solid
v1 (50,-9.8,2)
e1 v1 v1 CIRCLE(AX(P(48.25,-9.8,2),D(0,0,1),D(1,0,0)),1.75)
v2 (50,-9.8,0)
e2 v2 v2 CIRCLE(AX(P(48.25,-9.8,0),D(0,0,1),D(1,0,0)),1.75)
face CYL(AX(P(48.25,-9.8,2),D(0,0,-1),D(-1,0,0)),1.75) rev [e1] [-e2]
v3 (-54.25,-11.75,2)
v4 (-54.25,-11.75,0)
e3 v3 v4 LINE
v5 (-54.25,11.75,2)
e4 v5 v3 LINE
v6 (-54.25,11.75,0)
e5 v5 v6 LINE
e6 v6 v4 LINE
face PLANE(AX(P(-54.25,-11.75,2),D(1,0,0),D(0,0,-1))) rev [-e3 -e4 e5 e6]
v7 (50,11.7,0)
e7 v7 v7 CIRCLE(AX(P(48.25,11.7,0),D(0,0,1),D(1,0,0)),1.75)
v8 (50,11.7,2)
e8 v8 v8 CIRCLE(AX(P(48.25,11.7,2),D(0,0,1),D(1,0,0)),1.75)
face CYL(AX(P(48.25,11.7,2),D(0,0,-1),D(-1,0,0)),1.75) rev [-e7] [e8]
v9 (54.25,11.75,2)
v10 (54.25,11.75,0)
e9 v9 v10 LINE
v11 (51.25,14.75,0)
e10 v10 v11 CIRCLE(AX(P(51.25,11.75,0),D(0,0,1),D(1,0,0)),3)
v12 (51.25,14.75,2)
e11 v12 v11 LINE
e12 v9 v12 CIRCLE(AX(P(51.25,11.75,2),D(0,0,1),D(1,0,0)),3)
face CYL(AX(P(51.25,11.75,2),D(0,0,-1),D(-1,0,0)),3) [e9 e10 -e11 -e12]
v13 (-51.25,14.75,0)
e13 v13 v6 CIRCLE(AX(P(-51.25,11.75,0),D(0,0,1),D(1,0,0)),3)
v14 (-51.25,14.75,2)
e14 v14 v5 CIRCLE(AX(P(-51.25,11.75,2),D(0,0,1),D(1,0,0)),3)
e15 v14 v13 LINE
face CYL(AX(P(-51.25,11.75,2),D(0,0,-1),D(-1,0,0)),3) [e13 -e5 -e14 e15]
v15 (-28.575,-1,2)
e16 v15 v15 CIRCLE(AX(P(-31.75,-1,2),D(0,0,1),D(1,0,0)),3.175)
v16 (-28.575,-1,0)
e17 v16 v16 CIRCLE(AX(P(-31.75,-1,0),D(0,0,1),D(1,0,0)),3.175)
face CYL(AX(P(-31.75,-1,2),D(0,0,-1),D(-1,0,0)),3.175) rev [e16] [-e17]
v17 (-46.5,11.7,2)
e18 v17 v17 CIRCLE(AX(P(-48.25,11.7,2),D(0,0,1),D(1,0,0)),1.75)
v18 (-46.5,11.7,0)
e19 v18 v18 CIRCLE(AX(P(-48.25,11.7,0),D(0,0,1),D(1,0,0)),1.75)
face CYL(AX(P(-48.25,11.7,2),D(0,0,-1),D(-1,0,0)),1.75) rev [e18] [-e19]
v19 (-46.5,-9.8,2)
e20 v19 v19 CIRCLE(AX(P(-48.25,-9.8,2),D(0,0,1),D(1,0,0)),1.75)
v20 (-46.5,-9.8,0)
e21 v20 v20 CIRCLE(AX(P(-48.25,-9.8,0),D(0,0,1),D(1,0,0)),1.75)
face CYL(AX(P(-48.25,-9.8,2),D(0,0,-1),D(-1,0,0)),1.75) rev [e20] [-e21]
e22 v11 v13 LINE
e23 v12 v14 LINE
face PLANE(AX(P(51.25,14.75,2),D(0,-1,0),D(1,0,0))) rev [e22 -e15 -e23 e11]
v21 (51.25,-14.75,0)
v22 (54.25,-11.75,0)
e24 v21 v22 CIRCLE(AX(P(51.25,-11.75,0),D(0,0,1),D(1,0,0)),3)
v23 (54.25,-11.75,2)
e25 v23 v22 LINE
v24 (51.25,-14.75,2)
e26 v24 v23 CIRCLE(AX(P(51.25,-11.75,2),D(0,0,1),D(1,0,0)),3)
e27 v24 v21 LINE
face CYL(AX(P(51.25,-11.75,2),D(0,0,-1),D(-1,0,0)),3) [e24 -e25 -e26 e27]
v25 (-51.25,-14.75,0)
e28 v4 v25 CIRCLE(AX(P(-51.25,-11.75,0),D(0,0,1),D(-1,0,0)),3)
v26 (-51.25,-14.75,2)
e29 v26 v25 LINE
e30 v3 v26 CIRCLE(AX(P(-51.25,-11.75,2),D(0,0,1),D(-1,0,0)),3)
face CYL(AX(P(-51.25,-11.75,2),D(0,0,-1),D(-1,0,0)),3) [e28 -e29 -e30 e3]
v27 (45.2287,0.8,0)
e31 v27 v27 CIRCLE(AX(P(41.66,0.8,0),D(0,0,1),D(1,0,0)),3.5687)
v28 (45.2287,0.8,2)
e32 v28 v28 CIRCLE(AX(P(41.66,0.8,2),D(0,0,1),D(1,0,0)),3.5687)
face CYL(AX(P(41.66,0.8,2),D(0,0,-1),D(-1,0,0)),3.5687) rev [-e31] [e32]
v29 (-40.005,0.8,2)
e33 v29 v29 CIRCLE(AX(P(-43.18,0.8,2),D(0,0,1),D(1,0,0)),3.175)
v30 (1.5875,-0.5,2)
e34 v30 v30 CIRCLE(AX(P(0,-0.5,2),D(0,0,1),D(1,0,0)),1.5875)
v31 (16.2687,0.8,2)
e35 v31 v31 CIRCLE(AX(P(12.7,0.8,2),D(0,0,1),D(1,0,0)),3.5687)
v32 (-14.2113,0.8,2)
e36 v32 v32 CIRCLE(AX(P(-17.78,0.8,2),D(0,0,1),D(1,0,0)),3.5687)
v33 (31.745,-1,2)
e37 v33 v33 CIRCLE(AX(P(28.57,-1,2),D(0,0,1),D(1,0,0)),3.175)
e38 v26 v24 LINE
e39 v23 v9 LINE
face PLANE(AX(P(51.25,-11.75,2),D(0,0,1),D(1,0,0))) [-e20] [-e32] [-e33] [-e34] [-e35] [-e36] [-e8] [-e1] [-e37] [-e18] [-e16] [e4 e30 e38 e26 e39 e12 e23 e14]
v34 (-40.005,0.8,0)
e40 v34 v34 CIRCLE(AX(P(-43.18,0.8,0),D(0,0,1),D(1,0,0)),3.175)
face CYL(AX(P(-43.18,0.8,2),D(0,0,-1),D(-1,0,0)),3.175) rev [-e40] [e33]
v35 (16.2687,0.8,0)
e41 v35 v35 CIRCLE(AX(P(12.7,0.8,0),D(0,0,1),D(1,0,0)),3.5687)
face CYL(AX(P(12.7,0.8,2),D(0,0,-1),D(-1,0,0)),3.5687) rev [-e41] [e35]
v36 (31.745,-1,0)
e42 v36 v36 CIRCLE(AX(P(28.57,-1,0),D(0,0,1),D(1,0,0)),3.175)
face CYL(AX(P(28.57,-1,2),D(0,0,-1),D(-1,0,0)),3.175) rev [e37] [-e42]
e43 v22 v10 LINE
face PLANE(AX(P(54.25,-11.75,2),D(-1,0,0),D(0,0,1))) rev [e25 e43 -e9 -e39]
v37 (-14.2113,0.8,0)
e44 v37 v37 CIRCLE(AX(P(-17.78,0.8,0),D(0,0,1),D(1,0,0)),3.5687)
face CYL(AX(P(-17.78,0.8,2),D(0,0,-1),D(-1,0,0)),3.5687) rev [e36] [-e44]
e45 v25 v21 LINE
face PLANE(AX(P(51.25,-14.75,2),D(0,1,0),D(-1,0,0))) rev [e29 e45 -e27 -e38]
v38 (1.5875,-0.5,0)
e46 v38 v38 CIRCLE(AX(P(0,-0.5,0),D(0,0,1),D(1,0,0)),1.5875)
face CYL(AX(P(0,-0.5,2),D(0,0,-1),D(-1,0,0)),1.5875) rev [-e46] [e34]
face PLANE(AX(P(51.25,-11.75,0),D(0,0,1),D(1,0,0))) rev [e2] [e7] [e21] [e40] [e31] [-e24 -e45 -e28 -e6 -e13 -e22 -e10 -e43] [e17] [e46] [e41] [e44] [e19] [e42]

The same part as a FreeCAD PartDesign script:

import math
import FreeCAD as App
import Part
import Sketcher

V = App.Vector

doc = App.newDocument("Part")
body = doc.addObject("PartDesign::Body", "Body")

# Sketch on XY plane
sketch1 = doc.addObject("Sketcher::SketchObject", "Sketch")
body.addObject(sketch1)
sketch1.AttachmentSupport = (doc.XY_Plane, [""])
sketch1.MapMode = "FlatFace"
sketch1.addGeometry(Part.LineSegment(V(-51.25, -14.75, 0), V(51.25, -14.75, 0)), False)
sketch1.addGeometry(Part.ArcOfCircle(Part.Circle(V(51.25, -11.75, 0), V(0, 0, 1), 3), math.radians(-90), math.radians(0)), False)
sketch1.addGeometry(Part.LineSegment(V(54.25, -11.75, 0), V(54.25, 11.75, 0)), False)
sketch1.addGeometry(Part.ArcOfCircle(Part.Circle(V(51.25, 11.75, 0), V(0, 0, 1), 3), math.radians(0), math.radians(90)), False)
sketch1.addGeometry(Part.LineSegment(V(51.25, 14.75, 0), V(-51.25, 14.75, 0)), False)
sketch1.addGeometry(Part.ArcOfCircle(Part.Circle(V(-51.25, 11.75, 0), V(0, 0, 1), 3), math.radians(90), math.radians(180)), False)
sketch1.addGeometry(Part.LineSegment(V(-54.25, 11.75, 0), V(-54.25, -11.75, 0)), False)
sketch1.addGeometry(Part.ArcOfCircle(Part.Circle(V(-51.25, -11.75, 0), V(0, 0, 1), 3), math.radians(180), math.radians(270)), False)
sketch1.addGeometry(Part.Circle(V(48.25, -9.8, 0), V(0, 0, 1), 1.75), False)
sketch1.addGeometry(Part.Circle(V(41.66, 0.8, 0), V(0, 0, 1), 3.5687), False)
sketch1.addGeometry(Part.Circle(V(28.57, -1, 0), V(0, 0, 1), 3.175), False)
sketch1.addGeometry(Part.Circle(V(12.7, 0.8, 0), V(0, 0, 1), 3.5687), False)
sketch1.addGeometry(Part.Circle(V(-48.25, -9.8, 0), V(0, 0, 1), 1.75), False)
sketch1.addGeometry(Part.Circle(V(0, -0.5, 0), V(0, 0, 1), 1.5875), False)
sketch1.addGeometry(Part.Circle(V(-17.78, 0.8, 0), V(0, 0, 1), 3.5687), False)
sketch1.addGeometry(Part.Circle(V(-31.75, -1, 0), V(0, 0, 1), 3.175), False)
sketch1.addGeometry(Part.Circle(V(-43.18, 0.8, 0), V(0, 0, 1), 3.175), False)
sketch1.addGeometry(Part.Circle(V(48.25, 11.7, 0), V(0, 0, 1), 1.75), False)
sketch1.addGeometry(Part.Circle(V(-48.25, 11.7, 0), V(0, 0, 1), 1.75), False)
sketch1.addConstraint(Sketcher.Constraint("Tangent", 0, 2, 1, 1))
sketch1.addConstraint(Sketcher.Constraint("Tangent", 1, 2, 2, 1))
sketch1.addConstraint(Sketcher.Constraint("Tangent", 2, 2, 3, 1))
sketch1.addConstraint(Sketcher.Constraint("Tangent", 3, 2, 4, 1))
sketch1.addConstraint(Sketcher.Constraint("Tangent", 4, 2, 5, 1))
sketch1.addConstraint(Sketcher.Constraint("Tangent", 5, 2, 6, 1))
sketch1.addConstraint(Sketcher.Constraint("Tangent", 6, 2, 7, 1))
sketch1.addConstraint(Sketcher.Constraint("Tangent", 7, 2, 0, 1))
sketch1.addConstraint(Sketcher.Constraint("Horizontal", 0))
sketch1.addConstraint(Sketcher.Constraint("Vertical", 2))
sketch1.addConstraint(Sketcher.Constraint("Horizontal", 4))
sketch1.addConstraint(Sketcher.Constraint("Vertical", 6))
sketch1.addConstraint(Sketcher.Constraint("Equal", 1, 3))
sketch1.addConstraint(Sketcher.Constraint("Equal", 3, 5))
sketch1.addConstraint(Sketcher.Constraint("Equal", 5, 7))
sketch1.addConstraint(Sketcher.Constraint("Equal", 9, 11))
sketch1.addConstraint(Sketcher.Constraint("Equal", 8, 12))
sketch1.addConstraint(Sketcher.Constraint("Equal", 11, 14))
sketch1.addConstraint(Sketcher.Constraint("Equal", 10, 15))
sketch1.addConstraint(Sketcher.Constraint("Equal", 15, 16))
sketch1.addConstraint(Sketcher.Constraint("Equal", 12, 17))
sketch1.addConstraint(Sketcher.Constraint("Equal", 17, 18))
sketch1.addConstraint(Sketcher.Constraint("Symmetric", 1, 3, 5, 3, -1, 1))
sketch1.addConstraint(Sketcher.Constraint("Symmetric", 8, 3, 12, 3, -2))
sketch1.addConstraint(Sketcher.Constraint("Symmetric", 17, 3, 18, 3, -2))
sketch1.addConstraint(Sketcher.Constraint("PointOnObject", 13, 3, -2))
sketch1.addConstraint(Sketcher.Constraint("Horizontal", 9, 3, 11, 3))
sketch1.addConstraint(Sketcher.Constraint("Horizontal", 11, 3, 14, 3))
sketch1.addConstraint(Sketcher.Constraint("Horizontal", 10, 3, 15, 3))
sketch1.addConstraint(Sketcher.Constraint("Horizontal", 14, 3, 16, 3))
sketch1.addConstraint(Sketcher.Constraint("Vertical", 8, 3, 17, 3))
sketch1.addConstraint(Sketcher.Constraint("Radius", 1, 3.0))
sketch1.addConstraint(Sketcher.Constraint("Diameter", 8, 3.5))
sketch1.addConstraint(Sketcher.Constraint("Diameter", 10, 6.35))
sketch1.addConstraint(Sketcher.Constraint("Diameter", 13, 3.175))
sketch1.addConstraint(Sketcher.Constraint("DistanceX", 0, 1, 0, 2, 102.5))
sketch1.addConstraint(Sketcher.Constraint("DistanceY", 2, 1, 2, 2, 23.5))
sketch1.addConstraint(Sketcher.Constraint("DistanceY", 10, 3, -1, 1, 1.0))
sketch1.addConstraint(Sketcher.Constraint("DistanceX", 8, 3, 1, 3, 3.0))
sketch1.addConstraint(Sketcher.Constraint("Diameter", 9, 7.1374))
sketch1.addConstraint(Sketcher.Constraint("DistanceY", 8, 3, -1, 1, 9.8))
sketch1.addConstraint(Sketcher.Constraint("DistanceY", -1, 1, 9, 3, 0.8))
sketch1.addConstraint(Sketcher.Constraint("DistanceX", -1, 1, 11, 3, 12.7))
sketch1.addConstraint(Sketcher.Constraint("DistanceY", 13, 3, -1, 1, 0.5))
sketch1.addConstraint(Sketcher.Constraint("DistanceY", -1, 1, 17, 3, 11.7))
sketch1.addConstraint(Sketcher.Constraint("DistanceX", 12, 3, 15, 3, 16.5))
sketch1.addConstraint(Sketcher.Constraint("DistanceX", 16, 3, 14, 3, 25.4))
sketch1.addConstraint(Sketcher.Constraint("DistanceX", -1, 1, 9, 3, 41.66))
sketch1.addConstraint(Sketcher.Constraint("DistanceX", -1, 1, 10, 3, 28.57))
sketch1.addConstraint(Sketcher.Constraint("DistanceX", 14, 3, -1, 1, 17.78))
pad1 = doc.addObject("PartDesign::Pad", "Pad")
body.addObject(pad1)
pad1.Profile = sketch1
pad1.Length = 2

doc.recompute()
